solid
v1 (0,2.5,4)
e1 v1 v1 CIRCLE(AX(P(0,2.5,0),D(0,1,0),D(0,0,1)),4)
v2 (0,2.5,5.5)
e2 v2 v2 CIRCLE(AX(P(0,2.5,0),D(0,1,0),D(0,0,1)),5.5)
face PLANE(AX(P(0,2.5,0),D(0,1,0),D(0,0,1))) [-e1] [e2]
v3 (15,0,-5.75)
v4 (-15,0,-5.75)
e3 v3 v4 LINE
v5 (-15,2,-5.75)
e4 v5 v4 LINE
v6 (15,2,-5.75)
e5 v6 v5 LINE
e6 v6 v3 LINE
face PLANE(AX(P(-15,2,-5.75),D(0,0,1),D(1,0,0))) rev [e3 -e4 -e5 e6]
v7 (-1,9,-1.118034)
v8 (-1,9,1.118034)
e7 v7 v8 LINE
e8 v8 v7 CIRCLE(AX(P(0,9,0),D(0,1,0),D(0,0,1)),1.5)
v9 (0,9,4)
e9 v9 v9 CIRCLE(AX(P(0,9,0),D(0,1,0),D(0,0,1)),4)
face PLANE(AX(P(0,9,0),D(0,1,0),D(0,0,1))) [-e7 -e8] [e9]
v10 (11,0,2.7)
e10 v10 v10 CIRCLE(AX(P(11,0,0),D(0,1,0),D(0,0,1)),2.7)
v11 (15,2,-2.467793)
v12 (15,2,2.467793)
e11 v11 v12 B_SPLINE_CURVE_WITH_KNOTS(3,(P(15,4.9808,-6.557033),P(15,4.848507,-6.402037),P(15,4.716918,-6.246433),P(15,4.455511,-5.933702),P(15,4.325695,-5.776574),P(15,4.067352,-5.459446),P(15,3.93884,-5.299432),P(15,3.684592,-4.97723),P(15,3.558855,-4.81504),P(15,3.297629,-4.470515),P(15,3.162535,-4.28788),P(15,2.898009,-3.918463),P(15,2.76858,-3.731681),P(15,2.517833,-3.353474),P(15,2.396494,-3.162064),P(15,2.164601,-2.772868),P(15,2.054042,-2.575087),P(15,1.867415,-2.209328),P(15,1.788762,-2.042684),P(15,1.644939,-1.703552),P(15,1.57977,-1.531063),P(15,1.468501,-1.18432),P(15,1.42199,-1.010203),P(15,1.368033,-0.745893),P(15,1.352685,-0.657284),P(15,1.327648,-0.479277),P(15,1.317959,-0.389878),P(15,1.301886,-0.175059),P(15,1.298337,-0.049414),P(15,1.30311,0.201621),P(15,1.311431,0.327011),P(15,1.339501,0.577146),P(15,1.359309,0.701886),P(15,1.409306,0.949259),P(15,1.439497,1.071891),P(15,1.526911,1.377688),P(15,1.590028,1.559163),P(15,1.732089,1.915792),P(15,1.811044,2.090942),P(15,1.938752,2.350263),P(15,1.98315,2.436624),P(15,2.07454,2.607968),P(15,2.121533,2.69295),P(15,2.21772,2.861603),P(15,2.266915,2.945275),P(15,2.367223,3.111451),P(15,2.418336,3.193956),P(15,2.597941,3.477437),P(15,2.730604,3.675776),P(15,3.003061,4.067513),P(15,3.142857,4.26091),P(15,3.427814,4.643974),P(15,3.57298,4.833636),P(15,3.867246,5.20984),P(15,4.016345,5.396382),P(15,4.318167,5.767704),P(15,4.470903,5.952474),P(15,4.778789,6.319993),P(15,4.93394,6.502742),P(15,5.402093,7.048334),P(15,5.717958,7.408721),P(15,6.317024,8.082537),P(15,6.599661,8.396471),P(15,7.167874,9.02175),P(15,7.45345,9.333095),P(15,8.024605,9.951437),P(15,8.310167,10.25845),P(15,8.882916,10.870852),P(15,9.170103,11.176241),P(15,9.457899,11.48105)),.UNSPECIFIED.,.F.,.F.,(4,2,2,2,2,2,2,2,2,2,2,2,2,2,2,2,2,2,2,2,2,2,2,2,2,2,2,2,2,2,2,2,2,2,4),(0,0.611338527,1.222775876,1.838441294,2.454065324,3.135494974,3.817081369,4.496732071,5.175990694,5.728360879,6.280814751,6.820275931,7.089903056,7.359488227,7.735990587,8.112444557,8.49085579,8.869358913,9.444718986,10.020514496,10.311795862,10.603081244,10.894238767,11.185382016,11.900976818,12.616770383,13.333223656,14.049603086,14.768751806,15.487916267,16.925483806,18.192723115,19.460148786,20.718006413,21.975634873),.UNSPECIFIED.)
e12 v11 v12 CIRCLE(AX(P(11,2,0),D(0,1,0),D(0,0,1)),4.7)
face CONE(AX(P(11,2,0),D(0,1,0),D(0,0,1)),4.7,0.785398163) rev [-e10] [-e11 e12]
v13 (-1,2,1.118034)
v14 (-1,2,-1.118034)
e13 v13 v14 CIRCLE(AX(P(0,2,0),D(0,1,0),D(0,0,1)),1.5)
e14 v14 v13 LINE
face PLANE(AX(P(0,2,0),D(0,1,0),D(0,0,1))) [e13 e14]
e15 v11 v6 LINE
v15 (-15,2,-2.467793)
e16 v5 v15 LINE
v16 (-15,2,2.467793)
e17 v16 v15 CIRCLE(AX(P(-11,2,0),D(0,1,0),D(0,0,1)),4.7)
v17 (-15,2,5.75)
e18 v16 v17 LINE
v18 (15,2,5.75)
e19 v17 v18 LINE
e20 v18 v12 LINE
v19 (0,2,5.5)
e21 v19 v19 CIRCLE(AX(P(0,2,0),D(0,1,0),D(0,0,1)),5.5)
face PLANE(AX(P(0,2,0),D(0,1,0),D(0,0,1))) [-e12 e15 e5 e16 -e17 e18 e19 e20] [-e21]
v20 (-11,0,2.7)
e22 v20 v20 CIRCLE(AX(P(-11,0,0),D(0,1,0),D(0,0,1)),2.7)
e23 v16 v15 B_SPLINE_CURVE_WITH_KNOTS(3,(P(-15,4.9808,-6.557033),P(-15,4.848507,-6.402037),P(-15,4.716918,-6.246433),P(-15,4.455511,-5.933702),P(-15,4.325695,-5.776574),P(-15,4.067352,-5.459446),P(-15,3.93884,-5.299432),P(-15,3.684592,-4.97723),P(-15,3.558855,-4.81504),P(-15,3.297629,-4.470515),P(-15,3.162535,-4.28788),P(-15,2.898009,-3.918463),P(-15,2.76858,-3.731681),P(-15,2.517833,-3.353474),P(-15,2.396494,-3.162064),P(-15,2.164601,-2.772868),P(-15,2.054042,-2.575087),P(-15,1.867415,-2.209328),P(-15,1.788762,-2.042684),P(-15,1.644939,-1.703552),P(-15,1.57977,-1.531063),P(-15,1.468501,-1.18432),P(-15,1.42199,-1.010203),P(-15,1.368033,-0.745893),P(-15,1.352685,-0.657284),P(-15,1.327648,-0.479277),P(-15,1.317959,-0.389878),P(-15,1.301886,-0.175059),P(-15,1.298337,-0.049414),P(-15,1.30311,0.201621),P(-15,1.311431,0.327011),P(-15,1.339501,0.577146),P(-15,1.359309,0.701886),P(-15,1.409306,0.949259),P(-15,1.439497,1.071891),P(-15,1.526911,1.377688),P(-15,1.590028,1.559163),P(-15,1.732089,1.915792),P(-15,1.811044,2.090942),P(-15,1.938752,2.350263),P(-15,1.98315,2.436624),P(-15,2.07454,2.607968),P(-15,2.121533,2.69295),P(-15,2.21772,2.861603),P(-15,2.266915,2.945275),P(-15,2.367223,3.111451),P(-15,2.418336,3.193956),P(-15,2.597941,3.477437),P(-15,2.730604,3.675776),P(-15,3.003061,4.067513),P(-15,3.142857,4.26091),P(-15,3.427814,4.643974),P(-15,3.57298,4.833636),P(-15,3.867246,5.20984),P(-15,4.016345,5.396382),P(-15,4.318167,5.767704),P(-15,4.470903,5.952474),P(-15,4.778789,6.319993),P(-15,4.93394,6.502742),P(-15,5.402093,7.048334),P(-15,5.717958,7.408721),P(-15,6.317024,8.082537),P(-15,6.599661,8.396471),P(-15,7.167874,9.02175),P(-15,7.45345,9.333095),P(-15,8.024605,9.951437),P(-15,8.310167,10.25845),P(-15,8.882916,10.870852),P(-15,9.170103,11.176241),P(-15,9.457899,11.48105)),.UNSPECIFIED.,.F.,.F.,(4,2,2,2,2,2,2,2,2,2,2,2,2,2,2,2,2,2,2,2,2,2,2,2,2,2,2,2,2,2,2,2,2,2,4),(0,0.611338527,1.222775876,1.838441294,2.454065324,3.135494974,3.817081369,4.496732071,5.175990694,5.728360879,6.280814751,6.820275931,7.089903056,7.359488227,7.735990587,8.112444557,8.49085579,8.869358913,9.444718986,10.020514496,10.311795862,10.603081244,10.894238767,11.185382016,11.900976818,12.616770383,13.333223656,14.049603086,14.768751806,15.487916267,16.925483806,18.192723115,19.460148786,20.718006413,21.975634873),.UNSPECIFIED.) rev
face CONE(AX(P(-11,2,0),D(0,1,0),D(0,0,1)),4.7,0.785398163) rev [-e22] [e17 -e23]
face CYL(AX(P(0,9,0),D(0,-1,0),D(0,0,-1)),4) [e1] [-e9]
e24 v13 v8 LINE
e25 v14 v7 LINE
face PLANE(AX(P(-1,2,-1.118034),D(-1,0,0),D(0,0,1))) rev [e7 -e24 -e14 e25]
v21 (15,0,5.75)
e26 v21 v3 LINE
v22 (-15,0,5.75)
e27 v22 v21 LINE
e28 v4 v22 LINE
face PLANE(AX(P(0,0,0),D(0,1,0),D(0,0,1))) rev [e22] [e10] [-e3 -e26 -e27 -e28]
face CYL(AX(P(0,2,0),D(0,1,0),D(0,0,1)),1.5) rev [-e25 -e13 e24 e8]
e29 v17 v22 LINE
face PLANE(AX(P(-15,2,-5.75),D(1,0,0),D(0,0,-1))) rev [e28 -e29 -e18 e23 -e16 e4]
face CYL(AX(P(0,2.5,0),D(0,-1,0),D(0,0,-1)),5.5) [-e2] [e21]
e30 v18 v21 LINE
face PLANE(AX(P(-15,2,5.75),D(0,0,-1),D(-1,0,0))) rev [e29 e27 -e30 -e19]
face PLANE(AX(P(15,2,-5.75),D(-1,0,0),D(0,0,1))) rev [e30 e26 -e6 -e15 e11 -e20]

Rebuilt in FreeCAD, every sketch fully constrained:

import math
import FreeCAD as App
import Part
import Sketcher
Q = App.Units.Quantity

doc = App.newDocument("Part")
body = doc.addObject("PartDesign::Body", "Body")

sketch1 = doc.addObject("Sketcher::SketchObject", "Sketch")
body.addObject(sketch1)
sketch1.AttachmentSupport = (doc.XZ_Plane, [""])
sketch1.MapMode = "FlatFace"
sketch1.addGeometry(Part.LineSegment(App.Vector(-15, -5.75, 0), App.Vector(-15, 5.75, 0)), False)
sketch1.addGeometry(Part.LineSegment(App.Vector(-15, 5.75, 0), App.Vector(15, 5.75, 0)), False)
sketch1.addGeometry(Part.LineSegment(App.Vector(15, 5.75, 0), App.Vector(15, -5.75, 0)), False)
sketch1.addGeometry(Part.LineSegment(App.Vector(15, -5.75, 0), App.Vector(-15, -5.75, 0)), False)
sketch1.addConstraint(Sketcher.Constraint("Coincident", 0, 2, 1, 1))
sketch1.addConstraint(Sketcher.Constraint("Coincident", 1, 2, 2, 1))
sketch1.addConstraint(Sketcher.Constraint("Coincident", 2, 2, 3, 1))
sketch1.addConstraint(Sketcher.Constraint("Coincident", 3, 2, 0, 1))
sketch1.addConstraint(Sketcher.Constraint("Vertical", 0))
sketch1.addConstraint(Sketcher.Constraint("Horizontal", 1))
sketch1.addConstraint(Sketcher.Constraint("Vertical", 2))
sketch1.addConstraint(Sketcher.Constraint("Horizontal", 3))
sketch1.addConstraint(Sketcher.Constraint("Symmetric", 0, 2, 2, 2, -1, 1))
sketch1.addConstraint(Sketcher.Constraint("DistanceX", 1, 1, 1, 2, 30.0))
sketch1.addConstraint(Sketcher.Constraint("DistanceY", 0, 1, 0, 2, 11.5))
pad1 = doc.addObject("PartDesign::Pad", "Pad")
body.addObject(pad1)
pad1.Profile = sketch1
pad1.Length = 2
pad1.Reversed = True

sketch2 = doc.addObject("Sketcher::SketchObject", "Sketch001")
body.addObject(sketch2)
sketch2.AttachmentSupport = (doc.XZ_Plane, [""])
sketch2.MapMode = "FlatFace"
sketch2.AttachmentOffset = App.Placement(App.Vector(0, 0, -2), App.Rotation())
sketch2.addGeometry(Part.Circle(App.Vector(0, 0, 0), App.Vector(0, 0, 1), 5.5), False)
sketch2.addConstraint(Sketcher.Constraint("Coincident", 0, 3, -1, 1))
sketch2.addConstraint(Sketcher.Constraint("Diameter", 0, 11.0))
pad2 = doc.addObject("PartDesign::Pad", "Pad001")
body.addObject(pad2)
pad2.Profile = sketch2
pad2.Length = 0.5
pad2.Reversed = True

sketch3 = doc.addObject("Sketcher::SketchObject", "Sketch002")
body.addObject(sketch3)
sketch3.AttachmentSupport = (doc.XZ_Plane, [""])
sketch3.MapMode = "FlatFace"
sketch3.AttachmentOffset = App.Placement(App.Vector(0, 0, -2.5), App.Rotation())
sketch3.addGeometry(Part.Circle(App.Vector(0, 0, 0), App.Vector(0, 0, 1), 4), False)
sketch3.addConstraint(Sketcher.Constraint("Coincident", 0, 3, -1, 1))
sketch3.addConstraint(Sketcher.Constraint("Diameter", 0, 8.0))
pad3 = doc.addObject("PartDesign::Pad", "Pad002")
body.addObject(pad3)
pad3.Profile = sketch3
pad3.Length = 6.5
pad3.Reversed = True

sketch4 = doc.addObject("Sketcher::SketchObject", "Sketch003")
body.addObject(sketch4)
sketch4.AttachmentSupport = (doc.XZ_Plane, [""])
sketch4.MapMode = "FlatFace"
sketch4.AttachmentOffset = App.Placement(App.Vector(0, 0, -9), App.Rotation())
sketch4.addGeometry(Part.LineSegment(App.Vector(-1, -1.118034, 0), App.Vector(-1, 1.118034, 0)), False)
sketch4.addGeometry(Part.ArcOfCircle(Part.Circle(App.Vector(0, 0, 0), App.Vector(0, 0, 1), 1.5), math.radians(-131.810315), math.radians(131.810315)), False)
sketch4.addConstraint(Sketcher.Constraint("Coincident", 0, 1, 1, 1))
sketch4.addConstraint(Sketcher.Constraint("Coincident", 1, 2, 0, 2))
sketch4.addConstraint(Sketcher.Constraint("Vertical", 0))
sketch4.addConstraint(Sketcher.Constraint("Coincident", 1, 3, -1, 1))
sketch4.addConstraint(Sketcher.Constraint("Radius", 1, 1.5))
sketch4.addConstraint(Sketcher.Constraint("DistanceX", 0, 1, -1, 1, 1.0))
pocket1 = doc.addObject("PartDesign::Pocket", "Pocket")
body.addObject(pocket1)
pocket1.Profile = sketch4
pocket1.Length = 7
pocket1.Reversed = True

sketch5 = doc.addObject("Sketcher::SketchObject", "Sketch004")
body.addObject(sketch5)
sketch5.AttachmentSupport = (doc.YZ_Plane, [""])
sketch5.MapMode = "FlatFace"
sketch5.AttachmentOffset = App.Placement(App.Vector(0, 0, 11), App.Rotation())
sketch5.addGeometry(Part.LineSegment(App.Vector(-1.351936, 0, 0), App.Vector(2, 0, 0)), False)
sketch5.addGeometry(Part.LineSegment(App.Vector(2, 0, 0), App.Vector(2, 4.7, 0)), False)
sketch5.addGeometry(Part.LineSegment(App.Vector(2, 4.7, 0), App.Vector(-0.45, 2.25, 0)), False)
sketch5.addGeometry(Part.LineSegment(App.Vector(-0.45, 2.25, 0), App.Vector(0, 2.25, 0)), False)
sketch5.addGeometry(Part.LineSegment(App.Vector(0, 2.25, 0), App.Vector(-1.351936, 0, 0)), False)
sketch5.addConstraint(Sketcher.Constraint("Coincident", 0, 2, 1, 1))
sketch5.addConstraint(Sketcher.Constraint("Coincident", 1, 2, 2, 1))
sketch5.addConstraint(Sketcher.Constraint("Coincident", 2, 2, 3, 1))
sketch5.addConstraint(Sketcher.Constraint("Coincident", 3, 2, 4, 1))
sketch5.addConstraint(Sketcher.Constraint("Coincident", 4, 2, 0, 1))
sketch5.addConstraint(Sketcher.Constraint("Horizontal", 0))
sketch5.addConstraint(Sketcher.Constraint("Vertical", 1))
sketch5.addConstraint(Sketcher.Constraint("Horizontal", 3))
sketch5.addConstraint(Sketcher.Constraint("PointOnObject", 0, 2, -1))
sketch5.addConstraint(Sketcher.Constraint("PointOnObject", 3, 2, -2))
sketch5.addConstraint(Sketcher.Constraint("Angle", 2, Q("-135 deg")))
sketch5.addConstraint(Sketcher.Constraint("Angle", 4, Q("-121 deg")))
sketch5.addConstraint(Sketcher.Constraint("DistanceY", 1, 1, 1, 2, 4.7))
sketch5.addConstraint(Sketcher.Constraint("DistanceX", -1, 1, 0, 2, 2.0))
sketch5.addConstraint(Sketcher.Constraint("DistanceX", 3, 1, 3, 2, 0.45))
groove = doc.addObject("PartDesign::Groove", "Groove")
body.addObject(groove)
groove.Profile = sketch5
groove.ReferenceAxis = (sketch5, ["H_Axis"])
groove.Angle = 360
doc.recompute()

linearpattern = doc.addObject("PartDesign::LinearPattern", "LinearPattern")
body.addObject(linearpattern)
linearpattern.Originals = [groove]
linearpattern.Direction = (doc.X_Axis, [""])
linearpattern.Mode = "offset"
linearpattern.Offset = 22
linearpattern.Occurrences = 2
linearpattern.Reversed = True
body.Tip = linearpattern

doc.recompute()
